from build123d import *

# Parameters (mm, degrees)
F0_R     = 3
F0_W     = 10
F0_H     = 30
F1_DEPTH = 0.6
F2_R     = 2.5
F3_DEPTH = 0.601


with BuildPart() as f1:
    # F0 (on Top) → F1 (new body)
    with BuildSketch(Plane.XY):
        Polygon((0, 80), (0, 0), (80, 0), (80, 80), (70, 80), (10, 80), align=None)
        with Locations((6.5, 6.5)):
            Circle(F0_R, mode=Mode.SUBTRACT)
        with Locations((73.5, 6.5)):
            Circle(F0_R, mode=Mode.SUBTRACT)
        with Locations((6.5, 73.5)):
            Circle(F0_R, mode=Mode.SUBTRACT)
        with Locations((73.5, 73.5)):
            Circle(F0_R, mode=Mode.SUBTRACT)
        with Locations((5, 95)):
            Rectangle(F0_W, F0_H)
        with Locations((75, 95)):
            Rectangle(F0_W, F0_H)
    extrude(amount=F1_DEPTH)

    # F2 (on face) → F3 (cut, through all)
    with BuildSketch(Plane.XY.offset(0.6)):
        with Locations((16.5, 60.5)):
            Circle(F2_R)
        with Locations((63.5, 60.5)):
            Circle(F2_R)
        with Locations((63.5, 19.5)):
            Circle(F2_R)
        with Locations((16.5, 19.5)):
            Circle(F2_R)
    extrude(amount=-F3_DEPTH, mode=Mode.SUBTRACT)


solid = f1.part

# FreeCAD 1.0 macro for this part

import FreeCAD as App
import Part
import Sketcher
from FreeCAD import Vector
Q = App.Units.Quantity


def add_polygon(sketch, points):
    """Adds a closed chain of lines whose ends are joined by coincident constraints."""
    first, n = sketch.GeometryCount, len(points)
    for a, b in zip(points, points[1:] + points[:1]):
        sketch.addGeometry(Part.LineSegment(App.Vector(*a, 0), App.Vector(*b, 0)), False)
    for i in range(n):
        sketch.addConstraint(Sketcher.Constraint("Coincident", first + i, 2, first + (i + 1) % n, 1))

doc = App.newDocument("Part")
body = doc.addObject("PartDesign::Body", "Body")

# Sketch on XY plane
sketch1 = body.newObject("Sketcher::SketchObject", "Sketch")
sketch1.AttachmentSupport = (doc.getObject("XY_Plane"), [""])
sketch1.MapMode = "FlatFace"
add_polygon(sketch1, [(0, 0), (80, 0), (80, 110), (70, 110), (70, 80), (10, 80), (10, 110), (0, 110)])  # lines 0-7
sketch1.addGeometry(Part.Circle(Vector(6.5, 6.5, 0), Vector(0, 0, 1), 3), False)  # 8
sketch1.addGeometry(Part.Circle(Vector(73.5, 6.5, 0), Vector(0, 0, 1), 3), False)  # 9
sketch1.addGeometry(Part.Circle(Vector(6.5, 73.5, 0), Vector(0, 0, 1), 3), False)  # 10
sketch1.addGeometry(Part.Circle(Vector(73.5, 73.5, 0), Vector(0, 0, 1), 3), False)  # 11
sketch1.addConstraint(Sketcher.Constraint("Horizontal", 0))
sketch1.addConstraint(Sketcher.Constraint("Vertical", 1))
sketch1.addConstraint(Sketcher.Constraint("Horizontal", 2))
sketch1.addConstraint(Sketcher.Constraint("Vertical", 3))
sketch1.addConstraint(Sketcher.Constraint("Horizontal", 4))
sketch1.addConstraint(Sketcher.Constraint("Vertical", 5))
sketch1.addConstraint(Sketcher.Constraint("Horizontal", 6))
sketch1.addConstraint(Sketcher.Constraint("Vertical", 7))
sketch1.addConstraint(Sketcher.Constraint("Coincident", 7, 2, -1, 1))
sketch1.addConstraint(Sketcher.Constraint("Equal", 8, 9))
sketch1.addConstraint(Sketcher.Constraint("Equal", 9, 10))
sketch1.addConstraint(Sketcher.Constraint("Equal", 10, 11))
sketch1.addConstraint(Sketcher.Constraint("Horizontal", 8, 3, 9, 3))
sketch1.addConstraint(Sketcher.Constraint("Horizontal", 10, 3, 11, 3))
sketch1.addConstraint(Sketcher.Constraint("Horizontal", 2, 2, 5, 2))
sketch1.addConstraint(Sketcher.Constraint("Vertical", 8, 3, 10, 3))
sketch1.addConstraint(Sketcher.Constraint("Vertical", 9, 3, 11, 3))
sketch1.addConstraint(Sketcher.Constraint("Equal", 2, 6))
sketch1.addConstraint(Sketcher.Constraint("Diameter", 8, Q("6 mm")))
sketch1.addConstraint(Sketcher.Constraint("DistanceX", 0, 1, 0, 2, Q("80 mm")))
sketch1.addConstraint(Sketcher.Constraint("DistanceX", 2, 2, 2, 1, Q("10 mm")))
sketch1.addConstraint(Sketcher.Constraint("DistanceY", 1, 1, 1, 2, Q("110 mm")))
sketch1.addConstraint(Sketcher.Constraint("DistanceY", 3, 2, 3, 1, Q("30 mm")))
sketch1.addConstraint(Sketcher.Constraint("DistanceX", 8, 3, 9, 3, Q("67 mm")))
sketch1.addConstraint(Sketcher.Constraint("DistanceY", 8, 3, 10, 3, Q("67 mm")))
sketch1.addConstraint(Sketcher.Constraint("DistanceX", -1, 1, 8, 3, Q("6.5 mm")))
sketch1.addConstraint(Sketcher.Constraint("DistanceY", -1, 1, 8, 3, Q("6.5 mm")))
pad1 = body.newObject("PartDesign::Pad", "Pad")
pad1.Profile = sketch1
pad1.Length = 0.6

# Sketch on XY plane
sketch2 = body.newObject("Sketcher::SketchObject", "Sketch001")
sketch2.AttachmentSupport = (doc.getObject("XY_Plane"), [""])
sketch2.MapMode = "FlatFace"
sketch2.AttachmentOffset = App.Placement(Vector(0, 0, 0.6), App.Rotation())
sketch2.addGeometry(Part.Circle(Vector(16.5, 60.5, 0), Vector(0, 0, 1), 2.5), False)
sketch2.addGeometry(Part.Circle(Vector(63.5, 60.5, 0), Vector(0, 0, 1), 2.5), False)
sketch2.addGeometry(Part.Circle(Vector(63.5, 19.5, 0), Vector(0, 0, 1), 2.5), False)
sketch2.addGeometry(Part.Circle(Vector(16.5, 19.5, 0), Vector(0, 0, 1), 2.5), False)
sketch2.addConstraint(Sketcher.Constraint("Equal", 0, 1))
sketch2.addConstraint(Sketcher.Constraint("Equal", 1, 2))
sketch2.addConstraint(Sketcher.Constraint("Equal", 2, 3))
sketch2.addConstraint(Sketcher.Constraint("Horizontal", 0, 3, 1, 3))
sketch2.addConstraint(Sketcher.Constraint("Horizontal", 2, 3, 3, 3))
sketch2.addConstraint(Sketcher.Constraint("Vertical", 1, 3, 2, 3))
sketch2.addConstraint(Sketcher.Constraint("Vertical", 0, 3, 3, 3))
sketch2.addConstraint(Sketcher.Constraint("Diameter", 0, Q("5 mm")))
sketch2.addConstraint(Sketcher.Constraint("DistanceX", 0, 3, 1, 3, Q("47 mm")))
sketch2.addConstraint(Sketcher.Constraint("DistanceY", 2, 3, 1, 3, Q("41 mm")))
sketch2.addConstraint(Sketcher.Constraint("DistanceX", -1, 1, 0, 3, Q("16.5 mm")))
sketch2.addConstraint(Sketcher.Constraint("DistanceY", -1, 1, 0, 3, Q("60.5 mm")))
pocket1 = body.newObject("PartDesign::Pocket", "Pocket")
pocket1.Profile = sketch2
pocket1.Type = "ThroughAll"

doc.recompute()
